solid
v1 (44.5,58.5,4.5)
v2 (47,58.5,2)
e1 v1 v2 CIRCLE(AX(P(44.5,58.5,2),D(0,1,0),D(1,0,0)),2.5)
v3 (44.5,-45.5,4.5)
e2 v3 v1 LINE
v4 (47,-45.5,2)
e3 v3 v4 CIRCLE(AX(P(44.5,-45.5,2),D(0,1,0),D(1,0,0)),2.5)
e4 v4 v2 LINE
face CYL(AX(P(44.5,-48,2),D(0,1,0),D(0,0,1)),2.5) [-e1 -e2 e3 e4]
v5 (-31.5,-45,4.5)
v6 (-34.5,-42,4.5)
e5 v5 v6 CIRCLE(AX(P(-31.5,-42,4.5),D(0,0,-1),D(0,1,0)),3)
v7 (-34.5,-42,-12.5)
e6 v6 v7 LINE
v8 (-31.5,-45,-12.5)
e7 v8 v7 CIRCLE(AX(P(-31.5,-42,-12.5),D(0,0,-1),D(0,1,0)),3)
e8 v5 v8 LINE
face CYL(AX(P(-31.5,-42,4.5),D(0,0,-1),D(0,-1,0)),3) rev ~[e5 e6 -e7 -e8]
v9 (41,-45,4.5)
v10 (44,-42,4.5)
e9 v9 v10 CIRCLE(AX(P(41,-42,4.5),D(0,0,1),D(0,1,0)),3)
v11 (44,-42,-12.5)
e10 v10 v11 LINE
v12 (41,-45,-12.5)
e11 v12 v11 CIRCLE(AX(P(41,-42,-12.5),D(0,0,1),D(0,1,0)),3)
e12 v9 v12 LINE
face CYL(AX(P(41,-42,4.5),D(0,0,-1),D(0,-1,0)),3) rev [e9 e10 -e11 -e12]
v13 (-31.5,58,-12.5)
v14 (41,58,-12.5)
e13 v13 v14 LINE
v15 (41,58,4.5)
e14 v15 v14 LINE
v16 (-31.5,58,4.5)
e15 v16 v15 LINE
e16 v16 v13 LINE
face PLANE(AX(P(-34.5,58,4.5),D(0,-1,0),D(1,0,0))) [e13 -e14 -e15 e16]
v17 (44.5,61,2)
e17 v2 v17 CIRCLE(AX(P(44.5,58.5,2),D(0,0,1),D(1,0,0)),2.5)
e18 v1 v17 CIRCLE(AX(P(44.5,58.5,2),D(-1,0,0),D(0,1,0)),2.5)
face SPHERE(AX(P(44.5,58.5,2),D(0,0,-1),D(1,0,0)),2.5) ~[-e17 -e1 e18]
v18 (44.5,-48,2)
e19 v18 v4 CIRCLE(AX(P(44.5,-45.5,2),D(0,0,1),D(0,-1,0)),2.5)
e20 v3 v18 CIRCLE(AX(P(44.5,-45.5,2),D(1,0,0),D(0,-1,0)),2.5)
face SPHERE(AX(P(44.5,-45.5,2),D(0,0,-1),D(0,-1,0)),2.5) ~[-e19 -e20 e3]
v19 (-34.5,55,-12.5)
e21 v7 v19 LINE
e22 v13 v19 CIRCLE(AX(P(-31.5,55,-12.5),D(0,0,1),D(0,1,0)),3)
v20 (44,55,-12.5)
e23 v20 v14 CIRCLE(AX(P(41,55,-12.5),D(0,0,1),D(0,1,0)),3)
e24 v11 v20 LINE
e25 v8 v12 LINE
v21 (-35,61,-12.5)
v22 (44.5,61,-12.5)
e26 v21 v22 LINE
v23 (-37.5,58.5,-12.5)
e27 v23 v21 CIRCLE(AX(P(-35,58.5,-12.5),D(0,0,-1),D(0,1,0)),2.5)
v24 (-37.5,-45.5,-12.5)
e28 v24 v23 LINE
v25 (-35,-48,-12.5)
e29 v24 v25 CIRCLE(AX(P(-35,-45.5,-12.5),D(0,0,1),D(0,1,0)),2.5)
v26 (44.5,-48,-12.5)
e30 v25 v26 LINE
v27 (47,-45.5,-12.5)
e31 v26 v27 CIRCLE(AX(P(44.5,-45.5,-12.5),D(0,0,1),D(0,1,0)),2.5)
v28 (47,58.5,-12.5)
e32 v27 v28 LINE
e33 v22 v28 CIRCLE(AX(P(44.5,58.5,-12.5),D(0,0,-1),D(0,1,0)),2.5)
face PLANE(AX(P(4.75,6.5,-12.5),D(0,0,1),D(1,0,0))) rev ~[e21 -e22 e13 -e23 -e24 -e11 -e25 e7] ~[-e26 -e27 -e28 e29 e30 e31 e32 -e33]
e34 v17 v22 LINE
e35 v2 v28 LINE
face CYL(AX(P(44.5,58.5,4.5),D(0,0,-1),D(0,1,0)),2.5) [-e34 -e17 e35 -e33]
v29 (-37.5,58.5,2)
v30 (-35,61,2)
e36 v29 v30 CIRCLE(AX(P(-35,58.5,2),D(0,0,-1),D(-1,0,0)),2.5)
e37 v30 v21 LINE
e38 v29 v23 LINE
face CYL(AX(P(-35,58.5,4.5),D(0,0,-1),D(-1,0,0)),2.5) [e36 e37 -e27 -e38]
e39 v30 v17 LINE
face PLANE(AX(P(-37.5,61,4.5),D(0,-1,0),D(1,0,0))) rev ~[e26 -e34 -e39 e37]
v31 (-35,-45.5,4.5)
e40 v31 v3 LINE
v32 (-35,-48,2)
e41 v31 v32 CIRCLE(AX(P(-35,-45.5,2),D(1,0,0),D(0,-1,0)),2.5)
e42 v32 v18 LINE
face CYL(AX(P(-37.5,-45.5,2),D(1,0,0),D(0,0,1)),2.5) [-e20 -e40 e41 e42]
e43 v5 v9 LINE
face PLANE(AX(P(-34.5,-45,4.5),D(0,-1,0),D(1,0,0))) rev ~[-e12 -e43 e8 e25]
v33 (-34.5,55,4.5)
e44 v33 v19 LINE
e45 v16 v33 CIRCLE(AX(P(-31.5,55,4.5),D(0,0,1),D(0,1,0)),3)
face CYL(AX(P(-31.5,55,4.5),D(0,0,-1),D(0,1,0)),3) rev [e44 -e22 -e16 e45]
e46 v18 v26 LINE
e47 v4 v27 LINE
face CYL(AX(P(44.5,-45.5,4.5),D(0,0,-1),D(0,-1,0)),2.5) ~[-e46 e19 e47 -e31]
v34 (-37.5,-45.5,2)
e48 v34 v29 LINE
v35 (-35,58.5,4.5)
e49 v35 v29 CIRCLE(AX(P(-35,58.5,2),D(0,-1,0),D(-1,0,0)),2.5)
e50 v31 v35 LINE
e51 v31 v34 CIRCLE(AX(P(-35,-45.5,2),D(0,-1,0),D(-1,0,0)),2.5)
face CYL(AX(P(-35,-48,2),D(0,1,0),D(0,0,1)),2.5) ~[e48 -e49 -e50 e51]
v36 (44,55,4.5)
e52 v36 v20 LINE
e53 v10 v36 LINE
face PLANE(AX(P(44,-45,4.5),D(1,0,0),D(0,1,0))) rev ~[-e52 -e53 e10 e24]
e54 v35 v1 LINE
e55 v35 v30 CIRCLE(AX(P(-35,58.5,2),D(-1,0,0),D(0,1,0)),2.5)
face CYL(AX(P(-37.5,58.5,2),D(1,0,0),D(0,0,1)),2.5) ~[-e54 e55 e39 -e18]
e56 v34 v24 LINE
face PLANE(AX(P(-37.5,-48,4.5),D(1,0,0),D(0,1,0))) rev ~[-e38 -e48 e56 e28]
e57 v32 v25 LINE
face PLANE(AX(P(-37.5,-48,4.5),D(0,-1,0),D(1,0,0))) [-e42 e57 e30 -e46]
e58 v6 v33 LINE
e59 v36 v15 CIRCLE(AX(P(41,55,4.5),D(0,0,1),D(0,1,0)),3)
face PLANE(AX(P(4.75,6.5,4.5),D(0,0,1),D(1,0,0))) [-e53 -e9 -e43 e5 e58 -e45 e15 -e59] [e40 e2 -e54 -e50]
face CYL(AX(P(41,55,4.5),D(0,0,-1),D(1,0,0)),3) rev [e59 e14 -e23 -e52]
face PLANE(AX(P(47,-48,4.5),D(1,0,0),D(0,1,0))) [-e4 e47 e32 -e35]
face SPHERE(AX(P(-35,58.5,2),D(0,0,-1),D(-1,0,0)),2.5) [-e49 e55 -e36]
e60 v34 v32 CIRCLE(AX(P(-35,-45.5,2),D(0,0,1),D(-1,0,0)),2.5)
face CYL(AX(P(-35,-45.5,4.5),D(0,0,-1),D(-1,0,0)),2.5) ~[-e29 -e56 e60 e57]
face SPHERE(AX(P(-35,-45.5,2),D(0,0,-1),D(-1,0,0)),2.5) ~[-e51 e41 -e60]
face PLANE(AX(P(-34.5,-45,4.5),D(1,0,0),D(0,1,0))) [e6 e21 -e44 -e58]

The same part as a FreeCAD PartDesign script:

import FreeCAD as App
import Part
import Sketcher
from FreeCAD import Vector
Q = App.Units.Quantity


def edges_at(feature, points):
    """Names of the edges that pass closest to the given points."""
    edges = feature.Shape.Edges
    near = lambda p: min(range(len(edges)), key=lambda i: edges[i].distToShape(Part.Vertex(*p))[0])
    return sorted({f"Edge{near(p) + 1}" for p in points})

doc = App.newDocument("Part")
body = doc.addObject("PartDesign::Body", "Body")

# Sketch on XY plane
sketch1 = body.newObject("Sketcher::SketchObject", "Sketch")
sketch1.AttachmentSupport = (doc.getObject("XY_Plane"), [""])
sketch1.MapMode = "FlatFace"
sketch1.addGeometry([
    Part.LineSegment(Vector(-37.5, 61, 0), Vector(-37.5, -48, 0)),  # 0
    Part.LineSegment(Vector(-37.5, -48, 0), Vector(47, -48, 0)),  # 1
    Part.LineSegment(Vector(47, -48, 0), Vector(47, 61, 0)),  # 2
    Part.LineSegment(Vector(47, 61, 0), Vector(-37.5, 61, 0)),  # 3
    Part.LineSegment(Vector(44, -45, 0), Vector(-34.5, -45, 0)),  # 4
    Part.LineSegment(Vector(-34.5, -45, 0), Vector(-34.5, 58, 0)),  # 5
    Part.LineSegment(Vector(-34.5, 58, 0), Vector(44, 58, 0)),  # 6
    Part.LineSegment(Vector(44, 58, 0), Vector(44, -45, 0)),  # 7
], False)
sketch1.addConstraint([
    Sketcher.Constraint("Coincident", 0, 2, 1, 1),
    Sketcher.Constraint("Coincident", 1, 2, 2, 1),
    Sketcher.Constraint("Coincident", 2, 2, 3, 1),
    Sketcher.Constraint("Coincident", 3, 2, 0, 1),
    Sketcher.Constraint("Coincident", 4, 2, 5, 1),
    Sketcher.Constraint("Coincident", 5, 2, 6, 1),
    Sketcher.Constraint("Coincident", 6, 2, 7, 1),
    Sketcher.Constraint("Coincident", 7, 2, 4, 1),
    Sketcher.Constraint("Vertical", 0),
    Sketcher.Constraint("Horizontal", 1),
    Sketcher.Constraint("Vertical", 2),
    Sketcher.Constraint("Horizontal", 3),
    Sketcher.Constraint("Horizontal", 4),
    Sketcher.Constraint("Vertical", 5),
    Sketcher.Constraint("Horizontal", 6),
    Sketcher.Constraint("Vertical", 7),
    Sketcher.Constraint("DistanceY", 0, 2, 0, 1, Q("109 mm")),
    Sketcher.Constraint("DistanceY", 5, 1, 5, 2, Q("103 mm")),
    Sketcher.Constraint("DistanceX", 1, 1, 1, 2, Q("84.5 mm")),
    Sketcher.Constraint("DistanceX", 4, 2, 4, 1, Q("78.5 mm")),
    Sketcher.Constraint("DistanceY", 0, 2, -1, 1, Q("48 mm")),
    Sketcher.Constraint("DistanceX", -1, 1, 1, 2, Q("47 mm")),
    Sketcher.Constraint("DistanceY", 4, 2, -1, 1, Q("45 mm")),
    Sketcher.Constraint("DistanceX", -1, 1, 6, 2, Q("44 mm")),
])
pad1 = body.newObject("PartDesign::Pad", "Pad")
pad1.Profile = sketch1
pad1.Length = 17
pad1.Reversed = True
doc.recompute()

fillet = body.newObject("PartDesign::Fillet", "Fillet")
fillet.Base = (pad1, edges_at(pad1, [
    (-34.5, 58, -8.5),
    (-34.5, -45, -8.5),
    (44, 58, -8.5),
    (44, -45, -8.5),
]))
fillet.Radius = 3
doc.recompute()

fillet2 = body.newObject("PartDesign::Fillet", "Fillet001")
fillet2.Base = (fillet, edges_at(fillet, [
    (47, 61, -8.5),
    (-37.5, 61, -8.5),
    (47, -48, -8.5),
    (-37.5, -48, -8.5),
    (-37.5, 6.5, 0),
    (4.75, -48, 0),
    (47, 6.5, 0),
    (4.75, 61, 0),
]))
fillet2.Radius = 2.5
body2 = doc.addObject("PartDesign::Body", "Body001")
doc.recompute()

body.Placement = App.Placement(Vector(0, 0, 4.5), App.Rotation(Vector(0, 0, 1), 0))
boolean = body2.newObject("PartDesign::Boolean", "Boolean")
boolean.Type = "Fuse"
boolean.addObjects([body])

doc.recompute()
